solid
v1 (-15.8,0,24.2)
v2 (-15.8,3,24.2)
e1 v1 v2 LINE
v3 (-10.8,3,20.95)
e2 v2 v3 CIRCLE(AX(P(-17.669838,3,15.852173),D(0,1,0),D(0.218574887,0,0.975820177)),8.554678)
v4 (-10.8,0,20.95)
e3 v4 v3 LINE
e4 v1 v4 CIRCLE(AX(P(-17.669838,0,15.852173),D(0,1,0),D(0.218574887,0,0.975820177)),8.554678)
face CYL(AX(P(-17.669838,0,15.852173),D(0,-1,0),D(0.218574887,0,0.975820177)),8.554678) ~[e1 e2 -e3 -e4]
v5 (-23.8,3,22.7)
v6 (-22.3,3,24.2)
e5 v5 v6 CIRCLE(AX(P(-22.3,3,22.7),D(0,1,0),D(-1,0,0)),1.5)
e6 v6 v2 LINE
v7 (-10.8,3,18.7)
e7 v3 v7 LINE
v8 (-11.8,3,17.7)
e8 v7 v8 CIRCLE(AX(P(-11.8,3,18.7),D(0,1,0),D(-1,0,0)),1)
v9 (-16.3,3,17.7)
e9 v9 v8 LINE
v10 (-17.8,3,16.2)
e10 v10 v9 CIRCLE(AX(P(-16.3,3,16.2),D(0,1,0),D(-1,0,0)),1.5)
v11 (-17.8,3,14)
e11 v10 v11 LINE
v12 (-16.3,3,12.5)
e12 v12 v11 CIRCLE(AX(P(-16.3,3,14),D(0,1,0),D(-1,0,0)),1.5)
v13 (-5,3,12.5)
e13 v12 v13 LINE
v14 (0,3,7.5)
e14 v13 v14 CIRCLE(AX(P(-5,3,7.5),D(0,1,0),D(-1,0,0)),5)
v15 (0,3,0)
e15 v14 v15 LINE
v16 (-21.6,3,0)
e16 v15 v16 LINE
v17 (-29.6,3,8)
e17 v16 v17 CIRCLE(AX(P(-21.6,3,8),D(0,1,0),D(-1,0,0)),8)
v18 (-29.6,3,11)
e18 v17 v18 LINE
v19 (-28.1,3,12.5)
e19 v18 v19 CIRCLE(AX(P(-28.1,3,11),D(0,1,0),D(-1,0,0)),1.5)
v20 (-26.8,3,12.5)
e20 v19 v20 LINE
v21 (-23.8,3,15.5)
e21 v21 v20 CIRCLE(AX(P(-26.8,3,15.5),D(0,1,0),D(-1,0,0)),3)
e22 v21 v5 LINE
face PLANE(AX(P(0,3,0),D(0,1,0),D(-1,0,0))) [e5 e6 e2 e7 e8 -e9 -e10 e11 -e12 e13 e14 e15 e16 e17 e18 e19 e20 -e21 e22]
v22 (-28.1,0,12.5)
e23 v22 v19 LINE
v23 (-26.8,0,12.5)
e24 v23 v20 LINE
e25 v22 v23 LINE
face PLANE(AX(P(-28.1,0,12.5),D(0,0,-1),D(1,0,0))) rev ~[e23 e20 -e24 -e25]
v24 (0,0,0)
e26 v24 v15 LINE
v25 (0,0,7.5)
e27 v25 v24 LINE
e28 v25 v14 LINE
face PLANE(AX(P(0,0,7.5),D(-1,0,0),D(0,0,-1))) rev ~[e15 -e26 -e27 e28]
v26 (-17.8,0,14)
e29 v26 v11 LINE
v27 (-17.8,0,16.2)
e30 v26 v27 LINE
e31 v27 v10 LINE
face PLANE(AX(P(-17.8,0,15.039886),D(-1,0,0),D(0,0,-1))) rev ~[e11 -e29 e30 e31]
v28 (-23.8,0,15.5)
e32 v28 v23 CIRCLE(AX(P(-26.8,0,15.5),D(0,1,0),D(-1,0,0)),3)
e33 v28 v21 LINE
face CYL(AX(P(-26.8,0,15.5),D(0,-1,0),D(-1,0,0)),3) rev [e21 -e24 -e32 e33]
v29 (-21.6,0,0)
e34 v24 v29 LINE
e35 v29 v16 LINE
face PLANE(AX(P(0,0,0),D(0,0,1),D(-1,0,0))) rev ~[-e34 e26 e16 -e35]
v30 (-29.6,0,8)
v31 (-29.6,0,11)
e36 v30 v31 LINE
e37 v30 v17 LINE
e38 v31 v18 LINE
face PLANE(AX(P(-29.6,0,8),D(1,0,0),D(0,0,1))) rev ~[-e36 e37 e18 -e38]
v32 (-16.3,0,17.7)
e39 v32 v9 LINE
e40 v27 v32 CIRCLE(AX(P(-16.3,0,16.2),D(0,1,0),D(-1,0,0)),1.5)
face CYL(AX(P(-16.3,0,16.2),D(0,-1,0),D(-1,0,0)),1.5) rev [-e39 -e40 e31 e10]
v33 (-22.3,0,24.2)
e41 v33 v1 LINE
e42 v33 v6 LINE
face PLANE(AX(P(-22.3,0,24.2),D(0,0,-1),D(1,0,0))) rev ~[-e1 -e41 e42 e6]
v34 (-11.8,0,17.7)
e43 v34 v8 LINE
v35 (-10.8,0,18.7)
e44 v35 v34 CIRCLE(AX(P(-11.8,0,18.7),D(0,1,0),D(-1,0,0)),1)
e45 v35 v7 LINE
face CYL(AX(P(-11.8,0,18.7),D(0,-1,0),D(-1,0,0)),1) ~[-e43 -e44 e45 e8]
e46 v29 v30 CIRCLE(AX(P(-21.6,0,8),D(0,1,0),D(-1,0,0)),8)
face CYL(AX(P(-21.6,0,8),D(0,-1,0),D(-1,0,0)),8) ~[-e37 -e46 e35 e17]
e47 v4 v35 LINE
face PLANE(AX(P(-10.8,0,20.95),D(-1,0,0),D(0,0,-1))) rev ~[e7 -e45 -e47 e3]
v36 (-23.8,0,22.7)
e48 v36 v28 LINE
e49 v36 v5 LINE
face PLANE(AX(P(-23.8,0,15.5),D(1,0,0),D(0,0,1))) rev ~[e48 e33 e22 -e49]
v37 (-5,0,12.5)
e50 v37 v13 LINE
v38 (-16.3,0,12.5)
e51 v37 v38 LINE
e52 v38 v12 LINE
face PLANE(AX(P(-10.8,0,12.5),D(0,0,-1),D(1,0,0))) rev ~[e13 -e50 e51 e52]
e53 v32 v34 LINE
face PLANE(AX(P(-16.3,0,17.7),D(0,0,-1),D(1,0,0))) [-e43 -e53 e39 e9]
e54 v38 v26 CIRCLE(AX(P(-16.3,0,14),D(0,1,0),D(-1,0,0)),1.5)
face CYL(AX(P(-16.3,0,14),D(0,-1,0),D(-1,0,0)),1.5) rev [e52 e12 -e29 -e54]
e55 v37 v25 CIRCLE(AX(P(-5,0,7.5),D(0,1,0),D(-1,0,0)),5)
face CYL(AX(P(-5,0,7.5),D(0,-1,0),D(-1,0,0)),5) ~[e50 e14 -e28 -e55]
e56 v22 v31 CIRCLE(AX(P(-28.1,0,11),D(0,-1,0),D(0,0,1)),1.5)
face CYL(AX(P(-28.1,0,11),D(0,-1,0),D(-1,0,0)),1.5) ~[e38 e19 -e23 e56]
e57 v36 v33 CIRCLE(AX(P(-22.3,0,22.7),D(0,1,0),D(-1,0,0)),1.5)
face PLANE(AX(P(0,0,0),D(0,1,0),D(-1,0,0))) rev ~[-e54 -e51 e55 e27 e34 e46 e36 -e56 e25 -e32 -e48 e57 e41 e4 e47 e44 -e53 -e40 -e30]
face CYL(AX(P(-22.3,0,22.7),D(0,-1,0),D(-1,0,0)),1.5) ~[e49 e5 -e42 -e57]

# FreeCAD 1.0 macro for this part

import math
import FreeCAD as App
import Part
import Sketcher
from FreeCAD import Vector
Q = App.Units.Quantity

doc = App.newDocument("Part")
body = doc.addObject("PartDesign::Body", "Body")

sketch1 = body.newObject("Sketcher::SketchObject", "Sketch")
sketch1.AttachmentSupport = (doc.getObject("XZ_Plane"), [""])
sketch1.MapMode = "FlatFace"
sketch1.addGeometry([
    Part.LineSegment(Vector(0, 7.5, 0), Vector(0, 0, 0)),
    Part.LineSegment(Vector(0, 0, 0), Vector(-21.6, 0, 0)),
    Part.ArcOfCircle(Part.Circle(Vector(-21.6, 8, 0), Vector(0, 0, 1), 8), math.radians(180), math.radians(270)),
    Part.LineSegment(Vector(-29.6, 8, 0), Vector(-29.6, 11, 0)),
    Part.ArcOfCircle(Part.Circle(Vector(-28.1, 11, 0), Vector(0, 0, 1), 1.5), math.radians(90), math.radians(180)),
    Part.LineSegment(Vector(-28.1, 12.5, 0), Vector(-26.8, 12.5, 0)),
    Part.ArcOfCircle(Part.Circle(Vector(-26.8, 15.5, 0), Vector(0, 0, 1), 3), math.radians(-90), math.radians(0)),
    Part.LineSegment(Vector(-23.8, 15.5, 0), Vector(-23.8, 22.7, 0)),
    Part.ArcOfCircle(Part.Circle(Vector(-22.3, 22.7, 0), Vector(0, 0, 1), 1.5), math.radians(90), math.radians(180)),
    Part.LineSegment(Vector(-22.3, 24.2, 0), Vector(-15.8, 24.2, 0)),
    Part.ArcOfCircle(Part.Circle(Vector(-17.6697, 15.8525, 0), Vector(0, 0, 1), 8.554328), math.radians(36.576397), math.radians(77.375078)),
    Part.LineSegment(Vector(-10.8, 20.95, 0), Vector(-10.8, 18.7, 0)),
    Part.ArcOfCircle(Part.Circle(Vector(-11.8, 18.7, 0), Vector(0, 0, 1), 1), math.radians(-90), math.radians(0)),
    Part.LineSegment(Vector(-11.8, 17.7, 0), Vector(-16.3, 17.7, 0)),
    Part.ArcOfCircle(Part.Circle(Vector(-16.3, 16.2, 0), Vector(0, 0, 1), 1.5), math.radians(90), math.radians(180)),
    Part.LineSegment(Vector(-17.8, 16.2, 0), Vector(-17.8, 14, 0)),
    Part.ArcOfCircle(Part.Circle(Vector(-16.3, 14, 0), Vector(0, 0, 1), 1.5), math.radians(180), math.radians(270)),
    Part.LineSegment(Vector(-16.3, 12.5, 0), Vector(-5, 12.5, 0)),
    Part.ArcOfCircle(Part.Circle(Vector(-5, 7.5, 0), Vector(0, 0, 1), 5), math.radians(0), math.radians(90)),
], False)
sketch1.addConstraint([
    Sketcher.Constraint("Coincident", 0, 2, 1, 1),
    Sketcher.Constraint("Tangent", 1, 2, 2, 2),
    Sketcher.Constraint("Tangent", 2, 1, 3, 1),
    Sketcher.Constraint("Tangent", 3, 2, 4, 2),
    Sketcher.Constraint("Tangent", 4, 1, 5, 1),
    Sketcher.Constraint("Tangent", 5, 2, 6, 1),
    Sketcher.Constraint("Tangent", 6, 2, 7, 1),
    Sketcher.Constraint("Tangent", 7, 2, 8, 2),
    Sketcher.Constraint("Tangent", 8, 1, 9, 1),
    Sketcher.Constraint("Coincident", 9, 2, 10, 2),
    Sketcher.Constraint("Coincident", 10, 1, 11, 1),
    Sketcher.Constraint("Tangent", 11, 2, 12, 2),
    Sketcher.Constraint("Tangent", 12, 1, 13, 1),
    Sketcher.Constraint("Tangent", 13, 2, 14, 1),
    Sketcher.Constraint("Tangent", 14, 2, 15, 1),
    Sketcher.Constraint("Tangent", 15, 2, 16, 1),
    Sketcher.Constraint("Tangent", 16, 2, 17, 1),
    Sketcher.Constraint("Tangent", 17, 2, 18, 2),
    Sketcher.Constraint("Tangent", 18, 1, 0, 1),
    Sketcher.Constraint("Vertical", 0),
    Sketcher.Constraint("Horizontal", 1),
    Sketcher.Constraint("Vertical", 3),
    Sketcher.Constraint("Horizontal", 5),
    Sketcher.Constraint("Vertical", 7),
    Sketcher.Constraint("Horizontal", 9),
    Sketcher.Constraint("Vertical", 11),
    Sketcher.Constraint("Horizontal", 13),
    Sketcher.Constraint("Vertical", 15),
    Sketcher.Constraint("Horizontal", 17),
    Sketcher.Constraint("Coincident", 0, 2, -1, 1),
    Sketcher.Constraint("Equal", 4, 8),
    Sketcher.Constraint("Equal", 8, 14),
    Sketcher.Constraint("Equal", 14, 16),
    Sketcher.Constraint("Horizontal", 5, 2, 16, 2),
    Sketcher.Constraint("Radius", 2, Q("8 mm")),
    Sketcher.Constraint("Radius", 6, Q("3 mm")),
    Sketcher.Constraint("Radius", 12, Q("1 mm")),
    Sketcher.Constraint("Radius", 18, Q("5 mm")),
    Sketcher.Constraint("Radius", 4, Q("1.5 mm")),
    Sketcher.Constraint("DistanceY", 3, 1, 3, 2, Q("3 mm")),
    Sketcher.Constraint("DistanceX", 9, 1, 9, 2, Q("6.5 mm")),
    Sketcher.Constraint("DistanceX", 8, 3, 14, 3, Q("6 mm")),
    Sketcher.Constraint("DistanceY", 14, 3, 9, 2, Q("8 mm")),
    Sketcher.Constraint("DistanceX", 9, 2, 10, 1, Q("5 mm")),
    Sketcher.Constraint("DistanceX", 2, 1, -1, 1, Q("29.6 mm")),
    Sketcher.Constraint("DistanceY", -1, 1, 8, 1, Q("24.2 mm")),
    Sketcher.Constraint("DistanceX", 4, 3, 8, 3, Q("5.8 mm")),
    Sketcher.Constraint("DistanceY", 10, 1, 9, 2, Q("3.25 mm")),
    Sketcher.Constraint("Radius", 10, Q("8.5543 mm")),
])
pad1 = body.newObject("PartDesign::Pad", "Pad")
pad1.Profile = sketch1
pad1.Length = 3
pad1.Reversed = True

doc.recompute()
